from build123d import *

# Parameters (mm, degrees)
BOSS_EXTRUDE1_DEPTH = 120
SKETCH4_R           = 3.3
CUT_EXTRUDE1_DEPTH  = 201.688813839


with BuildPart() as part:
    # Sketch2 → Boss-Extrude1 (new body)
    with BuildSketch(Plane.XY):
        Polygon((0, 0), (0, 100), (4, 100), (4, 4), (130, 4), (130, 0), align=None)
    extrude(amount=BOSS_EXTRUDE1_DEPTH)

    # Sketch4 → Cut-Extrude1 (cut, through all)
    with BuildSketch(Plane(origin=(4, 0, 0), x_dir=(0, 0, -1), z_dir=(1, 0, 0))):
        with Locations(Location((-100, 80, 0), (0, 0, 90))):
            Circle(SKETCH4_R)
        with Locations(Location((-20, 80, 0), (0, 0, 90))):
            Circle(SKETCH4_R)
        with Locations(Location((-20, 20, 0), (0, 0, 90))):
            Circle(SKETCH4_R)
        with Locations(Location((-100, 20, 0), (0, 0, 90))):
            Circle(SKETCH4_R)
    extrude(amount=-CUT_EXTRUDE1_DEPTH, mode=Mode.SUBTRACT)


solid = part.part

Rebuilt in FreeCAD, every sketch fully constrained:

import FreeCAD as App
import Part
import Sketcher
from FreeCAD import Vector


def add_polygon(sketch, points):
    """Adds a closed chain of lines whose ends are joined by coincident constraints."""
    first, n = sketch.GeometryCount, len(points)
    for a, b in zip(points, points[1:] + points[:1]):
        sketch.addGeometry(Part.LineSegment(App.Vector(*a, 0), App.Vector(*b, 0)), False)
    for i in range(n):
        sketch.addConstraint(Sketcher.Constraint("Coincident", first + i, 2, first + (i + 1) % n, 1))

doc = App.newDocument("Part")
body = doc.addObject("PartDesign::Body", "Body")

sketch1 = body.newObject("Sketcher::SketchObject", "Sketch")
sketch1.AttachmentSupport = (doc.getObject("XY_Plane"), [""])
sketch1.MapMode = "FlatFace"
add_polygon(sketch1, [(0, 100), (0, 0), (130, 0), (130, 4), (4, 4), (4, 100)])
sketch1.addConstraint(Sketcher.Constraint("Vertical", 0))
sketch1.addConstraint(Sketcher.Constraint("Horizontal", 1))
sketch1.addConstraint(Sketcher.Constraint("Vertical", 2))
sketch1.addConstraint(Sketcher.Constraint("Horizontal", 3))
sketch1.addConstraint(Sketcher.Constraint("Vertical", 4))
sketch1.addConstraint(Sketcher.Constraint("Horizontal", 5))
sketch1.addConstraint(Sketcher.Constraint("Coincident", 0, 2, -1, 1))
sketch1.addConstraint(Sketcher.Constraint("Equal", 5, 2))
sketch1.addConstraint(Sketcher.Constraint("DistanceX", 1, 1, 1, 2, 130.0))
sketch1.addConstraint(Sketcher.Constraint("DistanceX", 3, 2, 3, 1, 126.0))
sketch1.addConstraint(Sketcher.Constraint("DistanceY", 0, 2, 0, 1, 100.0))
pad1 = body.newObject("PartDesign::Pad", "Pad")
pad1.Profile = sketch1
pad1.Length = 120

sketch2 = body.newObject("Sketcher::SketchObject", "Sketch001")
sketch2.AttachmentSupport = (doc.getObject("YZ_Plane"), [""])
sketch2.MapMode = "FlatFace"
sketch2.AttachmentOffset = App.Placement(Vector(0, 0, 4), App.Rotation())
sketch2.addGeometry(Part.Circle(Vector(80, 100, 0), Vector(0, 0, 1), 3.3), False)
sketch2.addGeometry(Part.Circle(Vector(80, 20, 0), Vector(0, 0, 1), 3.3), False)
sketch2.addGeometry(Part.Circle(Vector(20, 20, 0), Vector(0, 0, 1), 3.3), False)
sketch2.addGeometry(Part.Circle(Vector(20, 100, 0), Vector(0, 0, 1), 3.3), False)
sketch2.addConstraint(Sketcher.Constraint("Equal", 0, 1))
sketch2.addConstraint(Sketcher.Constraint("Equal", 1, 2))
sketch2.addConstraint(Sketcher.Constraint("Equal", 2, 3))
sketch2.addConstraint(Sketcher.Constraint("Horizontal", 1, 3, 2, 3))
sketch2.addConstraint(Sketcher.Constraint("Horizontal", 0, 3, 3, 3))
sketch2.addConstraint(Sketcher.Constraint("Vertical", 0, 3, 1, 3))
sketch2.addConstraint(Sketcher.Constraint("Vertical", 2, 3, 3, 3))
sketch2.addConstraint(Sketcher.Constraint("Diameter", 0, 6.6))
sketch2.addConstraint(Sketcher.Constraint("DistanceX", -1, 1, 0, 3, 80.0))
sketch2.addConstraint(Sketcher.Constraint("DistanceY", -1, 1, 0, 3, 100.0))
sketch2.addConstraint(Sketcher.Constraint("DistanceY", -1, 1, 1, 3, 20.0))
sketch2.addConstraint(Sketcher.Constraint("DistanceX", -1, 1, 2, 3, 20.0))
pocket1 = body.newObject("PartDesign::Pocket", "Pocket")
pocket1.Profile = sketch2
pocket1.Type = "ThroughAll"

doc.recompute()
